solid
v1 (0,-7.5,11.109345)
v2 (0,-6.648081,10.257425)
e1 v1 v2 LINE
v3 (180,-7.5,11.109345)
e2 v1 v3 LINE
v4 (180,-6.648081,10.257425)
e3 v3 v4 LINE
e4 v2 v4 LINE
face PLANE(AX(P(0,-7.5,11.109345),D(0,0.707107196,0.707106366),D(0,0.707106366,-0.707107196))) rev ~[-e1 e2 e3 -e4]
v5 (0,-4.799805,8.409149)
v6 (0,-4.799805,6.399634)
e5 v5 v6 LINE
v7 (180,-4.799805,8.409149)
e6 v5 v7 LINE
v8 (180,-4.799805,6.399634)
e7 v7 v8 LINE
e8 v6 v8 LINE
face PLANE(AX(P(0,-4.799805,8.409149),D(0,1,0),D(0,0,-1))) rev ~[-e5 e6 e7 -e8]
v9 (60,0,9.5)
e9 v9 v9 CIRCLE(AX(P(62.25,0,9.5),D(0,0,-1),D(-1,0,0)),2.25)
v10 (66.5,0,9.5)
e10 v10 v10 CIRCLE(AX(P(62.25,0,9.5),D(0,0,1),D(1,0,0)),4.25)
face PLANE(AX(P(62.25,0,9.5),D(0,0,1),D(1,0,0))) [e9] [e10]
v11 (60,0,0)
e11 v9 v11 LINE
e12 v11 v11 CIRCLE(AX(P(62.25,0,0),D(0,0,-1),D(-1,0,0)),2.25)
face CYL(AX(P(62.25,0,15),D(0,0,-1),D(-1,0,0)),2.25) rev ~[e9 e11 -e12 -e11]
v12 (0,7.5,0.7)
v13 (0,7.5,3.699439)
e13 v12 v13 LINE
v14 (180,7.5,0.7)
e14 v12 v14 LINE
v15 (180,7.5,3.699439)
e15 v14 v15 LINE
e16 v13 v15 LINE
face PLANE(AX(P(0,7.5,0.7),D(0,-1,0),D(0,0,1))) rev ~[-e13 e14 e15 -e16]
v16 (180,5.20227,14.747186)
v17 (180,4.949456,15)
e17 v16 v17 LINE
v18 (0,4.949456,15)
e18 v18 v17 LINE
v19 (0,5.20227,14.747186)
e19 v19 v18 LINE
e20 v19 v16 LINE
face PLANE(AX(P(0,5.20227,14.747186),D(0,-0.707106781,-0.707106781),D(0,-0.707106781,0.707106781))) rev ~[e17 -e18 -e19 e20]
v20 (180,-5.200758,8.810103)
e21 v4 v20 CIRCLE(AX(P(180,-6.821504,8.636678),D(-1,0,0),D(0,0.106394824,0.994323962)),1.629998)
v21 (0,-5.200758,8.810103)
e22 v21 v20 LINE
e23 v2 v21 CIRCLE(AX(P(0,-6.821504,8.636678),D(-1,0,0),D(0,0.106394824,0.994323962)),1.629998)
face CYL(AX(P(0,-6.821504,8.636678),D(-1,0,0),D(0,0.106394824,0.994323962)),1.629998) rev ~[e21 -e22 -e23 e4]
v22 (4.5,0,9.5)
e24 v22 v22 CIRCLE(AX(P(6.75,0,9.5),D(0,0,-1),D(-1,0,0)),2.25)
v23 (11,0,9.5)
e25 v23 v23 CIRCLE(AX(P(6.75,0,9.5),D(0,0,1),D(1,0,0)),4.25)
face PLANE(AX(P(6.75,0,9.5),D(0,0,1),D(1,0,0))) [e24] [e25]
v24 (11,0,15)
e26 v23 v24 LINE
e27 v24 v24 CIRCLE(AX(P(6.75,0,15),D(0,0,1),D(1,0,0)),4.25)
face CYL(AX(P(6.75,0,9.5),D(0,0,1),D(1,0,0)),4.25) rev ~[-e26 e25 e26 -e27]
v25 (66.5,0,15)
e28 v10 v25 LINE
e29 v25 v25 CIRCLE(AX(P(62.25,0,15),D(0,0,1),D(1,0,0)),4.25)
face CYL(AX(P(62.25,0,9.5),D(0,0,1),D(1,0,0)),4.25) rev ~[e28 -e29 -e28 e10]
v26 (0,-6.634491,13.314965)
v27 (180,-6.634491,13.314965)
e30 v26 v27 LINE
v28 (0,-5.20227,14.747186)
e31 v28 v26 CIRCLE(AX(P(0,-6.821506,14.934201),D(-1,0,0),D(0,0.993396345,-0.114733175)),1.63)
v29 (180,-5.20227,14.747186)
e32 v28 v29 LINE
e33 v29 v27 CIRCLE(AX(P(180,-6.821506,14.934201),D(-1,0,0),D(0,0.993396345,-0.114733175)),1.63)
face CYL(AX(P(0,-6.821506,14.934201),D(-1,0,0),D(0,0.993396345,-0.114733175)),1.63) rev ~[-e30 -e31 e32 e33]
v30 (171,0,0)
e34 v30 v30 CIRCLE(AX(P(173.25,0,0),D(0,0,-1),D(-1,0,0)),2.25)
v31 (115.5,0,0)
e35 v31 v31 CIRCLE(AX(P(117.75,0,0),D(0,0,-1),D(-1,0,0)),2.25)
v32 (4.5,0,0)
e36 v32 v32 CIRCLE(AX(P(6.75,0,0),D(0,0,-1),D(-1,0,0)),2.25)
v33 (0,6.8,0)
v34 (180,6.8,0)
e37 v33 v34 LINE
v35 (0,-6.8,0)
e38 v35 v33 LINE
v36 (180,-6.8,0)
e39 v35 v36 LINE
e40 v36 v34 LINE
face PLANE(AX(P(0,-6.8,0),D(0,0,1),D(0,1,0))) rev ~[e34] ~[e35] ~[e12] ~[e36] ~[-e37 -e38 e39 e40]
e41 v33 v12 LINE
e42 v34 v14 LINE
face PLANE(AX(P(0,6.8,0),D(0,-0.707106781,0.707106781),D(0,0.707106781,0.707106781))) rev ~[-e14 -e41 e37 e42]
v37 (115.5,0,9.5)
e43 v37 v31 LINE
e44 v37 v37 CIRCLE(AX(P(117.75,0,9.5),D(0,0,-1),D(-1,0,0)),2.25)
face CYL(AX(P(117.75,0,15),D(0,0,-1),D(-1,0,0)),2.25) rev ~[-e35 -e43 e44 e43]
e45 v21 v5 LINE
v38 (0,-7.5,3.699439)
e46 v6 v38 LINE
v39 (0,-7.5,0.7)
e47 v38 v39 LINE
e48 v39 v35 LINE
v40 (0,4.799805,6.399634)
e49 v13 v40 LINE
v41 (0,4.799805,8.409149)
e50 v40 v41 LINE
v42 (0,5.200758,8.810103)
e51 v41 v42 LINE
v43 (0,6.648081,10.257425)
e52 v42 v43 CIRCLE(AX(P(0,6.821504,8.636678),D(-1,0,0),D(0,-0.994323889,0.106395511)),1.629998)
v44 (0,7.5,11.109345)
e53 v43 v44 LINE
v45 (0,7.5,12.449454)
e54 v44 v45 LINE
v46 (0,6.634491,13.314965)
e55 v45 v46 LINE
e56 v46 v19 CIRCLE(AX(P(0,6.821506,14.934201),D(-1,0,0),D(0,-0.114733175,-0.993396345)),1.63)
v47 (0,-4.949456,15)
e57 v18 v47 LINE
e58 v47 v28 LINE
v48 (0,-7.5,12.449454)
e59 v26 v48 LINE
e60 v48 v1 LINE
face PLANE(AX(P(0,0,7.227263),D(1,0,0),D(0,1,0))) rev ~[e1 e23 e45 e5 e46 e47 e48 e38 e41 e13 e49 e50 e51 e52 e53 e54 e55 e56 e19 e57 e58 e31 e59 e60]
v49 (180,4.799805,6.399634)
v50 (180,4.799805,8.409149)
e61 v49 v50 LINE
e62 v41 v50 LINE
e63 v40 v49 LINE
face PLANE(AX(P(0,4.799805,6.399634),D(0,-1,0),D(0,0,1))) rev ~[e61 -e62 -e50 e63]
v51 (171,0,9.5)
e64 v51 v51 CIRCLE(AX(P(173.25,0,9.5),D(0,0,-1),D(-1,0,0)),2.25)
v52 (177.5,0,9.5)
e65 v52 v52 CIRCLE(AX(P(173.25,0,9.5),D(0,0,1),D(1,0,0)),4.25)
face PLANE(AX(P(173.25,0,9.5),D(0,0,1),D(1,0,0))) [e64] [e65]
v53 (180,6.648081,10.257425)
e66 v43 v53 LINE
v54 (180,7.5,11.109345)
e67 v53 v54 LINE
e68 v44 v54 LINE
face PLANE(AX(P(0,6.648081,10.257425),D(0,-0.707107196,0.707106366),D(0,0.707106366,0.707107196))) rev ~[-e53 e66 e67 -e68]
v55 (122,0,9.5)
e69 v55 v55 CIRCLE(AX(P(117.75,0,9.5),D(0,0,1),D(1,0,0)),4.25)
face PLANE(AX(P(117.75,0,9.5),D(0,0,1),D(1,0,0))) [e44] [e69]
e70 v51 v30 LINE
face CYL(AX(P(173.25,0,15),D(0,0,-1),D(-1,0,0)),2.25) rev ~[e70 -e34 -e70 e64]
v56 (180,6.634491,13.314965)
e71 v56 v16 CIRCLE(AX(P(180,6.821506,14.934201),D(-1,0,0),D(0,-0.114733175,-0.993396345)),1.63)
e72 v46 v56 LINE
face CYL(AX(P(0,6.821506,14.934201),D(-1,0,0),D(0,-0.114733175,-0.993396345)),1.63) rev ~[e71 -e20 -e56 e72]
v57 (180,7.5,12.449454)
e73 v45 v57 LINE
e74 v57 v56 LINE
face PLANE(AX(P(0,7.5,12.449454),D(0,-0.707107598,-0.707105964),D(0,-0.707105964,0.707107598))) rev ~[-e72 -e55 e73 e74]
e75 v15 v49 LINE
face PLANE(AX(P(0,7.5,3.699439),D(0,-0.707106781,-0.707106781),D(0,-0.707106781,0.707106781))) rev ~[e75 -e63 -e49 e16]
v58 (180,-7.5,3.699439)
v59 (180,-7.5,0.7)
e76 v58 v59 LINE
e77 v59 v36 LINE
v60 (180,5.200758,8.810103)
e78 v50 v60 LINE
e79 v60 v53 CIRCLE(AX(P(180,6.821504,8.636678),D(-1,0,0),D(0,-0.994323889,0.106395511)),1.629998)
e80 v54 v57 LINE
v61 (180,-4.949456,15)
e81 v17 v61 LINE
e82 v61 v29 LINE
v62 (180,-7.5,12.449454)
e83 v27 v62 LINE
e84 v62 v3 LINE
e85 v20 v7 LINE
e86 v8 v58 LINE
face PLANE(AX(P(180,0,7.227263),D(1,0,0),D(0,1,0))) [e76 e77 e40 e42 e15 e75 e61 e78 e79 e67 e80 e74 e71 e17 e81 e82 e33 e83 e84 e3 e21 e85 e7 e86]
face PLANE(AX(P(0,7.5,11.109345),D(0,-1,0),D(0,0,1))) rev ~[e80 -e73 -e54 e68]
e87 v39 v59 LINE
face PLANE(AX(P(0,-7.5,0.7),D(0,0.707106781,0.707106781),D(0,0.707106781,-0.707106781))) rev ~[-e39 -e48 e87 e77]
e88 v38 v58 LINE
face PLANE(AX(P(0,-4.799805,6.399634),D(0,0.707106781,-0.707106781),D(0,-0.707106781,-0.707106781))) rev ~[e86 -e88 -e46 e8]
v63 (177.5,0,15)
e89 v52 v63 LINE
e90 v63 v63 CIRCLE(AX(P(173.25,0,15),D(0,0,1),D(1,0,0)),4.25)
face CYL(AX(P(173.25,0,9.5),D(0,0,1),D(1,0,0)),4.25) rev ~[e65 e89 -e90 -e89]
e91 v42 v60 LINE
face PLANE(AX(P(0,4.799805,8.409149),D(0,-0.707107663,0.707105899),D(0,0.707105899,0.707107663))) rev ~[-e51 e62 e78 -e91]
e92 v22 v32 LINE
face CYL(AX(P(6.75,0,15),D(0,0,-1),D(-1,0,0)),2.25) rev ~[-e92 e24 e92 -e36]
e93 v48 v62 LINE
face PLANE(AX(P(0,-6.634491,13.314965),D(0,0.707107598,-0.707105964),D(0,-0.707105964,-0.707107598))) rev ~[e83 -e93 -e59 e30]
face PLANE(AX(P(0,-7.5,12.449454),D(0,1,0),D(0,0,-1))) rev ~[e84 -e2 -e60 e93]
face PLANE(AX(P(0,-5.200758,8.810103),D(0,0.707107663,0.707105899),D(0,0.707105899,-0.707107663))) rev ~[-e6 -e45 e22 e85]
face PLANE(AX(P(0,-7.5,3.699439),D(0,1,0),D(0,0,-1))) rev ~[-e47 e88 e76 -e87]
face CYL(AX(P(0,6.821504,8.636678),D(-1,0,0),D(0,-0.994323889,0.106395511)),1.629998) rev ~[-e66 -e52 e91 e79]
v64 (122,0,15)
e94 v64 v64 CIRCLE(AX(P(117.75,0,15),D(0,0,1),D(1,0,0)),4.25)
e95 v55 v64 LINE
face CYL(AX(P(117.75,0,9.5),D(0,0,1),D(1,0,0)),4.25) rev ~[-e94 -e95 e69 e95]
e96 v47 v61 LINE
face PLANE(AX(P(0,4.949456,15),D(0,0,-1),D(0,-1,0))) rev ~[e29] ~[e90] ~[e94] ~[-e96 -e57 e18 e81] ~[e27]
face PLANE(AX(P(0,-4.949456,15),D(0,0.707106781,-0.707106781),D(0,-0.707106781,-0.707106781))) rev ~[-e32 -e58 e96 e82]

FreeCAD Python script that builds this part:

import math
import FreeCAD as App
import Part
import Sketcher
from FreeCAD import Vector
Q = App.Units.Quantity

doc = App.newDocument("Part")
body = doc.addObject("PartDesign::Body", "Body")

# Sketch on YZ plane
sketch1 = body.newObject("Sketcher::SketchObject", "Sketch")
sketch1.AttachmentSupport = (doc.getObject("YZ_Plane"), [""])
sketch1.MapMode = "FlatFace"
sketch1.addGeometry([
    Part.LineSegment(Vector(-6.8, 0, 0), Vector(6.8, 0, 0)),  # 0
    Part.LineSegment(Vector(6.8, 0, 0), Vector(7.5, 0.7, 0)),  # 1
    Part.LineSegment(Vector(7.5, 0.7, 0), Vector(7.5, 3.7, 0)),  # 2
    Part.LineSegment(Vector(7.5, 3.7, 0), Vector(4.8, 6.4, 0)),  # 3
    Part.LineSegment(Vector(4.8, 6.4, 0), Vector(4.8, 8.41, 0)),  # 4
    Part.LineSegment(Vector(4.8, 8.41, 0), Vector(5.2, 8.81, 0)),  # 5
    Part.ArcOfCircle(Part.Circle(Vector(6.82, 8.64, 0), Vector(0, 0, 1), 1.63), math.radians(96), math.radians(174)),  # 6
    Part.LineSegment(Vector(6.65, 10.26, 0), Vector(7.5, 11.11, 0)),  # 7
    Part.LineSegment(Vector(7.5, 11.11, 0), Vector(7.5, 12.45, 0)),  # 8
    Part.LineSegment(Vector(7.5, 12.45, 0), Vector(6.63, 13.31, 0)),  # 9
    Part.ArcOfCircle(Part.Circle(Vector(6.82, 14.93, 0), Vector(0, 0, 1), 1.63), math.radians(-173), math.radians(-97)),  # 10
    Part.LineSegment(Vector(5.2, 14.75, 0), Vector(4.95, 15, 0)),  # 11
    Part.LineSegment(Vector(4.95, 15, 0), Vector(-4.95, 15, 0)),  # 12
    Part.LineSegment(Vector(-4.95, 15, 0), Vector(-5.2, 14.75, 0)),  # 13
    Part.ArcOfCircle(Part.Circle(Vector(-6.82, 14.93, 0), Vector(0, 0, 1), 1.63), math.radians(-83), math.radians(-7)),  # 14
    Part.LineSegment(Vector(-6.63, 13.31, 0), Vector(-7.5, 12.45, 0)),  # 15
    Part.LineSegment(Vector(-7.5, 12.45, 0), Vector(-7.5, 11.11, 0)),  # 16
    Part.LineSegment(Vector(-7.5, 11.11, 0), Vector(-6.65, 10.26, 0)),  # 17
    Part.ArcOfCircle(Part.Circle(Vector(-6.82, 8.64, 0), Vector(0, 0, 1), 1.63), math.radians(6), math.radians(84)),  # 18
    Part.LineSegment(Vector(-5.2, 8.81, 0), Vector(-4.8, 8.41, 0)),  # 19
    Part.LineSegment(Vector(-4.8, 8.41, 0), Vector(-4.8, 6.4, 0)),  # 20
    Part.LineSegment(Vector(-4.8, 6.4, 0), Vector(-7.5, 3.7, 0)),  # 21
    Part.LineSegment(Vector(-7.5, 3.7, 0), Vector(-7.5, 0.7, 0)),  # 22
    Part.LineSegment(Vector(-7.5, 0.7, 0), Vector(-6.8, 0, 0)),  # 23
], False)
sketch1.addConstraint([
    Sketcher.Constraint("Coincident", 0, 2, 1, 1),
    Sketcher.Constraint("Coincident", 1, 2, 2, 1),
    Sketcher.Constraint("Coincident", 2, 2, 3, 1),
    Sketcher.Constraint("Coincident", 3, 2, 4, 1),
    Sketcher.Constraint("Coincident", 4, 2, 5, 1),
    Sketcher.Constraint("Coincident", 5, 2, 6, 2),
    Sketcher.Constraint("Coincident", 6, 1, 7, 1),
    Sketcher.Constraint("Coincident", 7, 2, 8, 1),
    Sketcher.Constraint("Coincident", 8, 2, 9, 1),
    Sketcher.Constraint("Coincident", 9, 2, 10, 2),
    Sketcher.Constraint("Coincident", 10, 1, 11, 1),
    Sketcher.Constraint("Coincident", 11, 2, 12, 1),
    Sketcher.Constraint("Coincident", 12, 2, 13, 1),
    Sketcher.Constraint("Coincident", 13, 2, 14, 2),
    Sketcher.Constraint("Coincident", 14, 1, 15, 1),
    Sketcher.Constraint("Coincident", 15, 2, 16, 1),
    Sketcher.Constraint("Coincident", 16, 2, 17, 1),
    Sketcher.Constraint("Coincident", 17, 2, 18, 2),
    Sketcher.Constraint("Coincident", 18, 1, 19, 1),
    Sketcher.Constraint("Coincident", 19, 2, 20, 1),
    Sketcher.Constraint("Coincident", 20, 2, 21, 1),
    Sketcher.Constraint("Coincident", 21, 2, 22, 1),
    Sketcher.Constraint("Coincident", 22, 2, 23, 1),
    Sketcher.Constraint("Coincident", 23, 2, 0, 1),
    Sketcher.Constraint("Horizontal", 0),
    Sketcher.Constraint("Vertical", 2),
    Sketcher.Constraint("Vertical", 4),
    Sketcher.Constraint("Vertical", 8),
    Sketcher.Constraint("Horizontal", 12),
    Sketcher.Constraint("Vertical", 16),
    Sketcher.Constraint("Vertical", 20),
    Sketcher.Constraint("Vertical", 22),
    Sketcher.Constraint("Equal", 6, 10),
    Sketcher.Constraint("Equal", 10, 14),
    Sketcher.Constraint("Equal", 14, 18),
    Sketcher.Constraint("Symmetric", 0, 2, 23, 2, -1, 1),
    Sketcher.Constraint("Symmetric", 10, 3, 14, 3, -2),
    Sketcher.Constraint("Symmetric", 6, 3, 18, 3, -2),
    Sketcher.Constraint("Symmetric", 8, 2, 15, 2, -2),
    Sketcher.Constraint("Symmetric", 4, 2, 19, 2, -2),
    Sketcher.Constraint("Symmetric", 2, 2, 21, 2, -2),
    Sketcher.Constraint("Perpendicular", 1, 3),
    Sketcher.Constraint("Perpendicular", 3, 5),
    Sketcher.Constraint("Parallel", 5, 7),
    Sketcher.Constraint("Perpendicular", 7, 9),
    Sketcher.Constraint("Parallel", 9, 11),
    Sketcher.Constraint("Perpendicular", 11, 13),
    Sketcher.Constraint("Parallel", 13, 15),
    Sketcher.Constraint("Perpendicular", 15, 17),
    Sketcher.Constraint("Parallel", 17, 19),
    Sketcher.Constraint("Perpendicular", 19, 21),
    Sketcher.Constraint("Perpendicular", 21, 23),
    Sketcher.Constraint("Horizontal", 10, 1, 13, 2),
    Sketcher.Constraint("Horizontal", 9, 2, 14, 1),
    Sketcher.Constraint("Horizontal", 7, 2, 16, 2),
    Sketcher.Constraint("Vertical", 6, 3, 10, 3),
    Sketcher.Constraint("Vertical", 2, 2, 7, 2),
    Sketcher.Constraint("Radius", 6, Q("1.629998 mm")),
    Sketcher.Constraint("DistanceX", 0, 1, 0, 2, Q("13.6 mm")),
    Sketcher.Constraint("DistanceY", -1, 1, 11, 2, Q("15 mm")),
    Sketcher.Constraint("DistanceX", -1, 1, 1, 2, Q("7.5 mm")),
    Sketcher.Constraint("DistanceX", 12, 2, 12, 1, Q("9.898912 mm")),
    Sketcher.Constraint("DistanceY", 2, 1, 2, 2, Q("2.999439 mm")),
    Sketcher.Constraint("DistanceY", 8, 1, 8, 2, Q("1.340109 mm")),
    Sketcher.Constraint("DistanceY", -1, 1, 10, 3, Q("14.934201 mm")),
    Sketcher.Constraint("DistanceX", 3, 2, 6, 3, Q("2.021699 mm")),
    Sketcher.Constraint("DistanceY", 5, 2, 10, 3, Q("6.124098 mm")),
    Sketcher.Constraint("DistanceY", 4, 1, 4, 2, Q("2.009515 mm")),
    Sketcher.Constraint("DistanceY", -1, 1, 6, 3, Q("8.636678 mm")),
    Sketcher.Constraint("DistanceX", -1, 1, 6, 1, Q("6.648081 mm")),
])
pad1 = body.newObject("PartDesign::Pad", "Pad")
pad1.Profile = sketch1
pad1.Length = 180

# Sketch on XY plane
sketch2 = body.newObject("Sketcher::SketchObject", "Sketch001")
sketch2.AttachmentSupport = (doc.getObject("XY_Plane"), [""])
sketch2.MapMode = "FlatFace"
sketch2.AttachmentOffset = App.Placement(Vector(0, 0, 15), App.Rotation())
sketch2.addGeometry([
    Part.Circle(Vector(6.8, 0, 0), Vector(0, 0, 1), 2.2),
    Part.Circle(Vector(62.2, 0, 0), Vector(0, 0, 1), 2.2),
    Part.Circle(Vector(117.8, 0, 0), Vector(0, 0, 1), 2.2),
    Part.Circle(Vector(173.2, 0, 0), Vector(0, 0, 1), 2.2),
], False)
sketch2.addConstraint([
    Sketcher.Constraint("Equal", 0, 1),
    Sketcher.Constraint("Equal", 1, 2),
    Sketcher.Constraint("Equal", 2, 3),
    Sketcher.Constraint("PointOnObject", 0, 3, -1),
    Sketcher.Constraint("PointOnObject", 1, 3, -1),
    Sketcher.Constraint("PointOnObject", 2, 3, -1),
    Sketcher.Constraint("PointOnObject", 3, 3, -1),
    Sketcher.Constraint("Diameter", 0, Q("4.5 mm")),
    Sketcher.Constraint("DistanceX", 0, 3, 2, 3, Q("111 mm")),
    Sketcher.Constraint("DistanceX", 1, 3, 3, 3, Q("111 mm")),
    Sketcher.Constraint("DistanceX", 0, 3, 1, 3, Q("55.5 mm")),
    Sketcher.Constraint("DistanceX", -1, 1, 0, 3, Q("6.75 mm")),
])
doc.recompute()
hole = body.newObject("PartDesign::Hole", "Hole")
hole.Profile = sketch2
hole.ThreadType = "None"
hole.Diameter = 4.5
hole.DepthType = "ThroughAll"
hole.HoleCutType = "Counterbore"
hole.HoleCutDiameter = 8.5
hole.HoleCutDepth = 5.5

doc.recompute()
